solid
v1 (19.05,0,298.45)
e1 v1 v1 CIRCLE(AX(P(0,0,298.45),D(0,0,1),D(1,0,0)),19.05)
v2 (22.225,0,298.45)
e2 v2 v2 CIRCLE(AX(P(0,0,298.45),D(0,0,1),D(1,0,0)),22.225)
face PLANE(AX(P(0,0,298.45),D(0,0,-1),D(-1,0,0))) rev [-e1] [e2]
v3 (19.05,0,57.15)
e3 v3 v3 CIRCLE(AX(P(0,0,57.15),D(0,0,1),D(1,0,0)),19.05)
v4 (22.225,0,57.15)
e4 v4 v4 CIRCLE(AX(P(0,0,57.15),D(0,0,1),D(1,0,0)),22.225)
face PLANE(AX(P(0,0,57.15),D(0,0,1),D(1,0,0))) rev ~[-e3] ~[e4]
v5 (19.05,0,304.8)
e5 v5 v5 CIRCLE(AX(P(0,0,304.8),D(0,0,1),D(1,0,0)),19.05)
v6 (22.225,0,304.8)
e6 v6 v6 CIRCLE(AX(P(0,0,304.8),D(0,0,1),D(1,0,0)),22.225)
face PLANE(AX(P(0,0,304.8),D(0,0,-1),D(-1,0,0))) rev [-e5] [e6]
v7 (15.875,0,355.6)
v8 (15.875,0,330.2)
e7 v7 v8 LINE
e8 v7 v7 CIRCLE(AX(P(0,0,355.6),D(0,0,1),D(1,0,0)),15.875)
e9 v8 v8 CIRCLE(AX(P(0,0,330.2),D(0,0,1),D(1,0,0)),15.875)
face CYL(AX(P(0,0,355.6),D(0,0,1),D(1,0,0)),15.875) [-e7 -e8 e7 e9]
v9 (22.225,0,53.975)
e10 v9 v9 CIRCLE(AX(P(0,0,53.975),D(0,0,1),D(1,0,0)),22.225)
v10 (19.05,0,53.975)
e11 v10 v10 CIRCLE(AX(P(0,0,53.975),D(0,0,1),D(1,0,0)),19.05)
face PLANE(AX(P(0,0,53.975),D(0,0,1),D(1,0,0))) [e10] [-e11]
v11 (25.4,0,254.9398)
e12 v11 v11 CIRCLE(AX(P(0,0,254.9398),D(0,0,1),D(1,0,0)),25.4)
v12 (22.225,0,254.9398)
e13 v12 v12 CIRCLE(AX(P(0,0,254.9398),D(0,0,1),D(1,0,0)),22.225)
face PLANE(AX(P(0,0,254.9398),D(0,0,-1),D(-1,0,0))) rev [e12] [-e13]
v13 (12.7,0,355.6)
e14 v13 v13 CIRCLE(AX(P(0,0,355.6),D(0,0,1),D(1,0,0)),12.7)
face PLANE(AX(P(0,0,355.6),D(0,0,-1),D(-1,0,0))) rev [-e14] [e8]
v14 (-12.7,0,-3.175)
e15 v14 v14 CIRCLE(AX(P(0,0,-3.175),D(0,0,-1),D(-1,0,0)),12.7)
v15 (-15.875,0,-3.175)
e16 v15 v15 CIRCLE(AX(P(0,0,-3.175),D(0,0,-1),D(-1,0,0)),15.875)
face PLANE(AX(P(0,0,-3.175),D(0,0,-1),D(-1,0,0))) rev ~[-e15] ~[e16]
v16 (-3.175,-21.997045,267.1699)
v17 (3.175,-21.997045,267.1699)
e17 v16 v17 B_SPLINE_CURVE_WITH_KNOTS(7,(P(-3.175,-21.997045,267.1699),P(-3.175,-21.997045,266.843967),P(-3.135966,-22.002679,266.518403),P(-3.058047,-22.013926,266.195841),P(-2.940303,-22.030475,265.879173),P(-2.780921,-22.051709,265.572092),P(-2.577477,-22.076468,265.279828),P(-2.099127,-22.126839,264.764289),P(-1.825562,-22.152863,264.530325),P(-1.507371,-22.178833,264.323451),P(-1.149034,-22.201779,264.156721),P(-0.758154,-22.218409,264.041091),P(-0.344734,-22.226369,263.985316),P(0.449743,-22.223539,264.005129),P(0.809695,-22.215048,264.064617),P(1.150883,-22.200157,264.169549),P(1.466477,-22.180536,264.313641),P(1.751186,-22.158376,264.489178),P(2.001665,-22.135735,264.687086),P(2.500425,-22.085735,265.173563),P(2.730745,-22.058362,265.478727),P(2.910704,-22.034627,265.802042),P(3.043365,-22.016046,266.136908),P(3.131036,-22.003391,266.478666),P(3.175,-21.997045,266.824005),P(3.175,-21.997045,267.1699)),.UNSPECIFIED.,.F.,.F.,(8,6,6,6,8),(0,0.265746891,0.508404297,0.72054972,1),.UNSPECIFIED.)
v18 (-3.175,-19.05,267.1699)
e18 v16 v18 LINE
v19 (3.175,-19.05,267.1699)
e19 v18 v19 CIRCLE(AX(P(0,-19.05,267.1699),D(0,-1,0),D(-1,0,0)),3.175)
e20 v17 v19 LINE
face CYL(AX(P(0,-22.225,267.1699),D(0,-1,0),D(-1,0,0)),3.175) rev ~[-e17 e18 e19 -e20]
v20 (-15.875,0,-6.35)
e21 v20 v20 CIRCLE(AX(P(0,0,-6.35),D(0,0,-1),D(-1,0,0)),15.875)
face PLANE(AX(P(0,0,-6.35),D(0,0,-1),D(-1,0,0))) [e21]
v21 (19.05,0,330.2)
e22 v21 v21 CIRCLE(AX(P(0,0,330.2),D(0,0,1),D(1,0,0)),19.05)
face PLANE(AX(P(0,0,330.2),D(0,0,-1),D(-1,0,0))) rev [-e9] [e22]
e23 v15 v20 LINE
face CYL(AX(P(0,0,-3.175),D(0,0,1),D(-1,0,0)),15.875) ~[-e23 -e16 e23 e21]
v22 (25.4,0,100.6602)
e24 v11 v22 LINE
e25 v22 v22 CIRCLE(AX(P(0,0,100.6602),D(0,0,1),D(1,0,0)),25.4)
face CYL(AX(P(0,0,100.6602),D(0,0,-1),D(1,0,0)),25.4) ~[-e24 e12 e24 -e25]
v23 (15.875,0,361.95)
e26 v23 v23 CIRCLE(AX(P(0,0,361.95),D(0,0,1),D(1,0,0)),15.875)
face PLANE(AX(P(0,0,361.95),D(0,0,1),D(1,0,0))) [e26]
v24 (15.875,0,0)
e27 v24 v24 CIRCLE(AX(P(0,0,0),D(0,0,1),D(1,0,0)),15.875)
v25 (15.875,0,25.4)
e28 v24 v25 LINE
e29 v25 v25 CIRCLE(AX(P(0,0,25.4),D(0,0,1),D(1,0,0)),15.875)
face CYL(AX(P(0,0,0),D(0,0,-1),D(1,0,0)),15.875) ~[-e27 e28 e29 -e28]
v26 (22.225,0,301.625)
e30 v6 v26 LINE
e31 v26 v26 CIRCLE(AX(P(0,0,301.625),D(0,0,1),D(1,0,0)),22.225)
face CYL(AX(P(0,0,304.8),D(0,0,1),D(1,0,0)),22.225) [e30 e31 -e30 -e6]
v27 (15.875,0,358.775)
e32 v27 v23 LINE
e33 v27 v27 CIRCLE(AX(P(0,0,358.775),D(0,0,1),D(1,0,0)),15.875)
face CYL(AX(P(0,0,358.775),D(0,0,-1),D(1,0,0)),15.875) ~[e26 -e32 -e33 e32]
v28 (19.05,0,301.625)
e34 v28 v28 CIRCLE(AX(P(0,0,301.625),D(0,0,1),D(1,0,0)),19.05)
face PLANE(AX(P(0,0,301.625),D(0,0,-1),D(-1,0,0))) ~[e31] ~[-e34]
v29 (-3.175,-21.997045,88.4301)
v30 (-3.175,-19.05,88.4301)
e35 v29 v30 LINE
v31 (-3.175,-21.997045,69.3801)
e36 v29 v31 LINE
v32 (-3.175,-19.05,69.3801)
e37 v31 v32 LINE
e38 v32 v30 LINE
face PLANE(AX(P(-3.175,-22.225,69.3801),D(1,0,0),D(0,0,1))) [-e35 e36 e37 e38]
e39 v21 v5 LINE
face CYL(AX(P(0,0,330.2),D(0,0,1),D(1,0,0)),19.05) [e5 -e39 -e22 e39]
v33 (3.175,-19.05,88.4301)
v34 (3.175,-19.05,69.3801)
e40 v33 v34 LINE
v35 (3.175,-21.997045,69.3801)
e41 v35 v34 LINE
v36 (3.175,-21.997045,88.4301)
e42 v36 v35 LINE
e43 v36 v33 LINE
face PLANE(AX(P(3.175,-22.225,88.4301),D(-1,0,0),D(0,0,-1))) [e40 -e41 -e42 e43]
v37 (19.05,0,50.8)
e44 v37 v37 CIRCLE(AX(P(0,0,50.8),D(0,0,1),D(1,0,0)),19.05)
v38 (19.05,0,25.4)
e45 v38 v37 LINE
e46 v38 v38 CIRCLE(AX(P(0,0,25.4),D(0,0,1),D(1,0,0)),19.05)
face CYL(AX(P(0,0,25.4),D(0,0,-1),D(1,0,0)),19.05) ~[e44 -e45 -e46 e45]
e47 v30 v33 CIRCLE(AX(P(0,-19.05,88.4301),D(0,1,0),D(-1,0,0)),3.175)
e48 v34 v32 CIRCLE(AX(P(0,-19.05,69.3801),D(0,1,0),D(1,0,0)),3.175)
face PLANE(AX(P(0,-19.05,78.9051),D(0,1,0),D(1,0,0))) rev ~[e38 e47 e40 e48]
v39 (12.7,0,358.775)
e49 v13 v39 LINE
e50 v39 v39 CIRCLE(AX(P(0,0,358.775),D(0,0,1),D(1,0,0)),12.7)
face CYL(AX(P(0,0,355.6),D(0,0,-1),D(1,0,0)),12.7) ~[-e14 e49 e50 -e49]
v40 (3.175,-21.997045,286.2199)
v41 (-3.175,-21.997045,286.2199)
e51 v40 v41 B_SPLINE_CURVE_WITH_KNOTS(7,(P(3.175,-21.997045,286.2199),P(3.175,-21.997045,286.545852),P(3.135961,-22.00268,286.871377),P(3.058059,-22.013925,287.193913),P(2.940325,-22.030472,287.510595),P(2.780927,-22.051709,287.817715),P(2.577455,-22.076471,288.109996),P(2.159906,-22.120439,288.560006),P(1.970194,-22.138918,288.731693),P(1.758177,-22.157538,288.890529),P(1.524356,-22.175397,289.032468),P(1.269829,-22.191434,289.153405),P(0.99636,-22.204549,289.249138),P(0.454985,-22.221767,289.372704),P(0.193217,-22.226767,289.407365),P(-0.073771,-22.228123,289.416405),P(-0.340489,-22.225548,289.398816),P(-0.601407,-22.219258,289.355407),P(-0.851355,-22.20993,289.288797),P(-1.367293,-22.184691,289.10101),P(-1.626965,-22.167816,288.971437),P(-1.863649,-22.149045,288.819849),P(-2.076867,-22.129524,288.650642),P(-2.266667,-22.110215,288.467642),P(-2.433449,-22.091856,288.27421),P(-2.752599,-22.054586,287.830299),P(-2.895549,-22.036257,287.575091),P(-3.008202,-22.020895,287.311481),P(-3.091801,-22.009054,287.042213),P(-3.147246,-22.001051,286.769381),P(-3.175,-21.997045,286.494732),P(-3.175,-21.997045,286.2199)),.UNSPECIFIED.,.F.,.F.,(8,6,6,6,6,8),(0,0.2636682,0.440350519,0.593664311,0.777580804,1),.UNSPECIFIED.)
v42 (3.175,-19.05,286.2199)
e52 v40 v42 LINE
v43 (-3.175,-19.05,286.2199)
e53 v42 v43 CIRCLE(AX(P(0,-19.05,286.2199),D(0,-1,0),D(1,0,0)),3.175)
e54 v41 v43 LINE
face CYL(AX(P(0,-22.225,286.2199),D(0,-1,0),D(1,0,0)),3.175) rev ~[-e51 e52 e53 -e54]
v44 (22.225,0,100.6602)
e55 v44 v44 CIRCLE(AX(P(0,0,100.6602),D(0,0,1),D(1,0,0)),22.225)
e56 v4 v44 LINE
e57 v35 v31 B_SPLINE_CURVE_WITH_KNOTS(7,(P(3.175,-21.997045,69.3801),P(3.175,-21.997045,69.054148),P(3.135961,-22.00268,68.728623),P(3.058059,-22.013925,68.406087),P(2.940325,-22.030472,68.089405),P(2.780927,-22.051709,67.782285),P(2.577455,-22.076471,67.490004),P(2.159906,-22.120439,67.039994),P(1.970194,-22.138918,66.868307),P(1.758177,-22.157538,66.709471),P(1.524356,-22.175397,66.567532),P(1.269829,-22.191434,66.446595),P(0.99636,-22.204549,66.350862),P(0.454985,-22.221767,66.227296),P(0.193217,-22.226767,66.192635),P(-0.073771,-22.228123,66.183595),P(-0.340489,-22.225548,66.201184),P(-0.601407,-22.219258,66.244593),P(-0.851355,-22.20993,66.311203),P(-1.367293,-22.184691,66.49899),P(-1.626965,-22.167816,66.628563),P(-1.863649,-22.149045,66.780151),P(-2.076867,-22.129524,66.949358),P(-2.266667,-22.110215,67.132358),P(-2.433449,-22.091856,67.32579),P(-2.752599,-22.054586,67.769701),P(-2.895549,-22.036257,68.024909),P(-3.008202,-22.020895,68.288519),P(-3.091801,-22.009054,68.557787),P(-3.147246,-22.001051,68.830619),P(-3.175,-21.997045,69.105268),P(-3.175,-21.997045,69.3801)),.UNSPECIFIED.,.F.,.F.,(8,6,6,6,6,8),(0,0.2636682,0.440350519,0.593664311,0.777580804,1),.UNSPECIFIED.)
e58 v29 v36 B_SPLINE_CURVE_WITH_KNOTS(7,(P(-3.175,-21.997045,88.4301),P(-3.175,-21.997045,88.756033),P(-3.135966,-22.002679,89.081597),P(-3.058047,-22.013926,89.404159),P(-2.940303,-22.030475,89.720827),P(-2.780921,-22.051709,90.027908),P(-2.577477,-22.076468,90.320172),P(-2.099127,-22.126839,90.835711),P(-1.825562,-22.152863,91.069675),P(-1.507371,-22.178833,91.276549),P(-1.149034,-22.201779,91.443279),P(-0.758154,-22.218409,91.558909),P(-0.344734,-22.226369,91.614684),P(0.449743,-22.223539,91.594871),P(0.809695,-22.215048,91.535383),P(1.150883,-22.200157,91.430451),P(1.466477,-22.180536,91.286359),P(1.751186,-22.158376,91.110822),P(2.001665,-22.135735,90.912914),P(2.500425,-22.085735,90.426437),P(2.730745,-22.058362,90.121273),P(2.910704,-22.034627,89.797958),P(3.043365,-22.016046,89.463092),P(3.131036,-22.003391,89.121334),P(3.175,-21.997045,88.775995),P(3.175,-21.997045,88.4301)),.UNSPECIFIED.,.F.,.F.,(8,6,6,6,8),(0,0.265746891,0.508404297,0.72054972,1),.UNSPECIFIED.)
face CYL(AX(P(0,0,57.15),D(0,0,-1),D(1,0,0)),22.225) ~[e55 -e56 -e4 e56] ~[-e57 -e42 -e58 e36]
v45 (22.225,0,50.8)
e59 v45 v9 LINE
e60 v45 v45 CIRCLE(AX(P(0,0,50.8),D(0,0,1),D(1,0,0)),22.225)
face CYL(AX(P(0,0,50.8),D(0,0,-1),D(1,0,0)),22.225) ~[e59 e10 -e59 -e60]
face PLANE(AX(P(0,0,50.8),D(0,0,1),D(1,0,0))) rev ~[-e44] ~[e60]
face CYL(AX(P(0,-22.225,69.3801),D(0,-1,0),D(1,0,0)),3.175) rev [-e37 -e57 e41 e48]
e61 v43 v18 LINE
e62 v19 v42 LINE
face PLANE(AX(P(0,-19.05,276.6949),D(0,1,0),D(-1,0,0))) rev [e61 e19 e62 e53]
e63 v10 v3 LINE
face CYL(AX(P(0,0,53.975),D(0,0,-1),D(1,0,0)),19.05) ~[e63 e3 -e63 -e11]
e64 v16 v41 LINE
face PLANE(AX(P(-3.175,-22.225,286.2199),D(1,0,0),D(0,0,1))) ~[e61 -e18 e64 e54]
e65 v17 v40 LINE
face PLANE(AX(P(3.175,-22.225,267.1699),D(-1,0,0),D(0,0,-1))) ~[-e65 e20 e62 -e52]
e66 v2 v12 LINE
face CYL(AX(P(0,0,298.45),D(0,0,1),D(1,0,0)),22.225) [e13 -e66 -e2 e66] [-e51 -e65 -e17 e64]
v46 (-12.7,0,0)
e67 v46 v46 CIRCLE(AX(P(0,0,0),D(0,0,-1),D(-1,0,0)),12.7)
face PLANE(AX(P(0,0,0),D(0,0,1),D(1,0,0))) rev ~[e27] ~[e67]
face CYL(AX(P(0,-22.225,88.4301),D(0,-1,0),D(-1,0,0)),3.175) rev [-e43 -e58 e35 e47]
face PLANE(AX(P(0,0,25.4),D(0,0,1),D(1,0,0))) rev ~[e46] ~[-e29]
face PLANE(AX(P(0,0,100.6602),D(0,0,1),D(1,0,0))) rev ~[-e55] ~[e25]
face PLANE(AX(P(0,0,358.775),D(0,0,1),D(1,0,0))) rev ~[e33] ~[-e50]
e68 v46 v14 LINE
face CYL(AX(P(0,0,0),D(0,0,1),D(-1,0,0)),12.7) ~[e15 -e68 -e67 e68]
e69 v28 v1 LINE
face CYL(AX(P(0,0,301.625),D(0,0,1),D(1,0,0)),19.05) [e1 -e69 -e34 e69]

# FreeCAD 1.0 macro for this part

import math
import FreeCAD as App
import Part
import Sketcher

V = App.Vector
Q = App.Units.Quantity

doc = App.newDocument("Part")
body = doc.addObject("PartDesign::Body", "Body")

# Sketch on XY plane
sketch1 = body.newObject("Sketcher::SketchObject", "Sketch")
sketch1.AttachmentSupport = (doc.getObject("XY_Plane"), [""])
sketch1.MapMode = "FlatFace"
sketch1.addGeometry(Part.Circle(V(0, 0, 0), V(0, 0, 1), 15.875), False)
sketch1.addConstraint([
    Sketcher.Constraint("Coincident", 0, 3, -1, 1),
    Sketcher.Constraint("Diameter", 0, Q("1.25 in")),
])
pad1 = body.newObject("PartDesign::Pad", "Pad")
pad1.Profile = sketch1
pad1.Length = Q("1 in")

# Sketch on XY plane
sketch2 = body.newObject("Sketcher::SketchObject", "Sketch001")
sketch2.AttachmentSupport = (doc.getObject("XY_Plane"), [""])
sketch2.MapMode = "FlatFace"
sketch2.AttachmentOffset = App.Placement(V(0, 0, 1 * 25.4), App.Rotation())
sketch2.addGeometry(Part.Circle(V(0, 0, 0), V(0, 0, 1), 19.05), False)
sketch2.addConstraint([
    Sketcher.Constraint("Coincident", 0, 3, -1, 1),
    Sketcher.Constraint("Diameter", 0, Q("1.5 in")),
])
pad2 = body.newObject("PartDesign::Pad", "Pad001")
pad2.Profile = sketch2
pad2.Length = Q("1 in")

# Sketch on XY plane
sketch3 = body.newObject("Sketcher::SketchObject", "Sketch002")
sketch3.AttachmentSupport = (doc.getObject("XY_Plane"), [""])
sketch3.MapMode = "FlatFace"
sketch3.AttachmentOffset = App.Placement(V(0, 0, 2 * 25.4), App.Rotation())
sketch3.addGeometry(Part.Circle(V(0, 0, 0), V(0, 0, 1), 22.225), False)
sketch3.addConstraint([
    Sketcher.Constraint("Coincident", 0, 3, -1, 1),
    Sketcher.Constraint("Diameter", 0, Q("1.75 in")),
])
pad3 = body.newObject("PartDesign::Pad", "Pad002")
pad3.Profile = sketch3
pad3.Length = Q("0.125 in")

# Sketch on XY plane
sketch4 = body.newObject("Sketcher::SketchObject", "Sketch003")
sketch4.AttachmentSupport = (doc.getObject("XY_Plane"), [""])
sketch4.MapMode = "FlatFace"
sketch4.AttachmentOffset = App.Placement(V(0, 0, 2.125 * 25.4), App.Rotation())
sketch4.addGeometry(Part.Circle(V(0, 0, 0), V(0, 0, 1), 19.05), False)
sketch4.addConstraint([
    Sketcher.Constraint("Coincident", 0, 3, -1, 1),
    Sketcher.Constraint("Diameter", 0, Q("1.5 in")),
])
pad4 = body.newObject("PartDesign::Pad", "Pad003")
pad4.Profile = sketch4
pad4.Length = Q("0.125 in")

# Sketch on XY plane
sketch5 = body.newObject("Sketcher::SketchObject", "Sketch004")
sketch5.AttachmentSupport = (doc.getObject("XY_Plane"), [""])
sketch5.MapMode = "FlatFace"
sketch5.AttachmentOffset = App.Placement(V(0, 0, 2.25 * 25.4), App.Rotation())
sketch5.addGeometry(Part.Circle(V(0, 0, 0), V(0, 0, 1), 22.225), False)
sketch5.addConstraint([
    Sketcher.Constraint("Coincident", 0, 3, -1, 1),
    Sketcher.Constraint("Diameter", 0, Q("1.75 in")),
])
pad5 = body.newObject("PartDesign::Pad", "Pad004")
pad5.Profile = sketch5
pad5.Length = Q("1.713 in")

# Sketch on XY plane
sketch6 = body.newObject("Sketcher::SketchObject", "Sketch005")
sketch6.AttachmentSupport = (doc.getObject("XY_Plane"), [""])
sketch6.MapMode = "FlatFace"
sketch6.AttachmentOffset = App.Placement(V(0, 0, 3.963 * 25.4), App.Rotation())
sketch6.addGeometry(Part.Circle(V(0, 0, 0), V(0, 0, 1), 25.4), False)
sketch6.addConstraint([
    Sketcher.Constraint("Coincident", 0, 3, -1, 1),
    Sketcher.Constraint("Diameter", 0, Q("2 in")),
])
pad6 = body.newObject("PartDesign::Pad", "Pad005")
pad6.Profile = sketch6
pad6.Length = Q("3.037 in")

# Sketch on XZ plane
sketch7 = body.newObject("Sketcher::SketchObject", "Sketch006")
sketch7.AttachmentSupport = (doc.getObject("XZ_Plane"), [""])
sketch7.MapMode = "FlatFace"
sketch7.AttachmentOffset = App.Placement(V(0, 0, 0.875 * 25.4), App.Rotation())
sketch7.addGeometry([
    Part.LineSegment(V(-3.175, 88.4301, 0), V(-3.175, 69.3801, 0)),
    Part.ArcOfCircle(Part.Circle(V(0, 69.3801, 0), V(0, 0, 1), 3.175), math.radians(180), math.radians(360)),
    Part.LineSegment(V(3.175, 69.3801, 0), V(3.175, 88.4301, 0)),
    Part.ArcOfCircle(Part.Circle(V(0, 88.4301, 0), V(0, 0, 1), 3.175), math.radians(0), math.radians(180)),
], False)
sketch7.addConstraint([
    Sketcher.Constraint("Tangent", 0, 2, 1, 1),
    Sketcher.Constraint("Tangent", 1, 2, 2, 1),
    Sketcher.Constraint("Tangent", 2, 2, 3, 1),
    Sketcher.Constraint("Tangent", 3, 2, 0, 1),
    Sketcher.Constraint("Vertical", 0),
    Sketcher.Constraint("Vertical", 2),
    Sketcher.Constraint("PointOnObject", 1, 3, -2),
    Sketcher.Constraint("Radius", 1, Q("0.125 in")),
    Sketcher.Constraint("DistanceY", 0, 2, 0, 1, Q("0.75 in")),
    Sketcher.Constraint("DistanceY", -1, 1, 1, 3, Q("2.7315 in")),
])
pocket1 = body.newObject("PartDesign::Pocket", "Pocket")
pocket1.Profile = sketch7
pocket1.Length = Q("0.125 in")
body2 = doc.addObject("PartDesign::Body", "Body001")
doc.recompute()

body2.BaseFeature = body
doc.recompute()

mirroring = doc.addObject("Part::Mirroring", "Mirroring")
mirroring.Source = body
mirroring.Base = V(0, 0, 177.8)
mirroring.Normal = V(0, 0, 1)
body3 = doc.addObject("PartDesign::Body", "Body002")
body3.BaseFeature = mirroring
boolean = body2.newObject("PartDesign::Boolean", "Boolean")
boolean.Type = "Fuse"
boolean.addObjects([body3])
doc.recompute()

# Sketch on XY plane
sketch8 = body2.newObject("Sketcher::SketchObject", "Sketch007")
sketch8.AttachmentSupport = (doc.getObject("XY_Plane001"), [""])
sketch8.MapMode = "FlatFace"
sketch8.addGeometry(Part.Circle(V(0, 0, 0), V(0, 0, 1), 12.7), False)
sketch8.addConstraint([
    Sketcher.Constraint("Coincident", 0, 3, -1, 1),
    Sketcher.Constraint("Diameter", 0, Q("1 in")),
])
pad7 = body2.newObject("PartDesign::Pad", "Pad006")
pad7.Profile = sketch8
pad7.Length = Q("0.125 in")
pad7.Reversed = True

# Sketch on XY plane
sketch9 = body2.newObject("Sketcher::SketchObject", "Sketch008")
sketch9.AttachmentSupport = (doc.getObject("XY_Plane001"), [""])
sketch9.MapMode = "FlatFace"
sketch9.AttachmentOffset = App.Placement(V(0, 0, -0.125 * 25.4), App.Rotation())
sketch9.addGeometry(Part.Circle(V(0, 0, 0), V(0, 0, 1), 15.875), False)
sketch9.addConstraint([
    Sketcher.Constraint("Coincident", 0, 3, -1, 1),
    Sketcher.Constraint("Diameter", 0, Q("1.25 in")),
])
pad8 = body2.newObject("PartDesign::Pad", "Pad007")
pad8.Profile = sketch9
pad8.Length = Q("0.125 in")
pad8.Reversed = True

# Sketch on XY plane
sketch10 = body2.newObject("Sketcher::SketchObject", "Sketch009")
sketch10.AttachmentSupport = (doc.getObject("XY_Plane001"), [""])
sketch10.MapMode = "FlatFace"
sketch10.AttachmentOffset = App.Placement(V(0, 0, 14 * 25.4), App.Rotation())
sketch10.addGeometry(Part.Circle(V(0, 0, 0), V(0, 0, 1), 12.7), False)
sketch10.addConstraint([
    Sketcher.Constraint("Coincident", 0, 3, -1, 1),
    Sketcher.Constraint("Diameter", 0, Q("1 in")),
])
pad9 = body2.newObject("PartDesign::Pad", "Pad008")
pad9.Profile = sketch10
pad9.Length = Q("0.125 in")

# Sketch on XY plane
sketch11 = body2.newObject("Sketcher::SketchObject", "Sketch010")
sketch11.AttachmentSupport = (doc.getObject("XY_Plane001"), [""])
sketch11.MapMode = "FlatFace"
sketch11.AttachmentOffset = App.Placement(V(0, 0, 14.125 * 25.4), App.Rotation())
sketch11.addGeometry(Part.Circle(V(0, 0, 0), V(0, 0, 1), 15.875), False)
sketch11.addConstraint([
    Sketcher.Constraint("Coincident", 0, 3, -1, 1),
    Sketcher.Constraint("Diameter", 0, Q("1.25 in")),
])
pad10 = body2.newObject("PartDesign::Pad", "Pad009")
pad10.Profile = sketch11
pad10.Length = Q("0.125 in")
mirroring.Visibility = False

doc.recompute()
